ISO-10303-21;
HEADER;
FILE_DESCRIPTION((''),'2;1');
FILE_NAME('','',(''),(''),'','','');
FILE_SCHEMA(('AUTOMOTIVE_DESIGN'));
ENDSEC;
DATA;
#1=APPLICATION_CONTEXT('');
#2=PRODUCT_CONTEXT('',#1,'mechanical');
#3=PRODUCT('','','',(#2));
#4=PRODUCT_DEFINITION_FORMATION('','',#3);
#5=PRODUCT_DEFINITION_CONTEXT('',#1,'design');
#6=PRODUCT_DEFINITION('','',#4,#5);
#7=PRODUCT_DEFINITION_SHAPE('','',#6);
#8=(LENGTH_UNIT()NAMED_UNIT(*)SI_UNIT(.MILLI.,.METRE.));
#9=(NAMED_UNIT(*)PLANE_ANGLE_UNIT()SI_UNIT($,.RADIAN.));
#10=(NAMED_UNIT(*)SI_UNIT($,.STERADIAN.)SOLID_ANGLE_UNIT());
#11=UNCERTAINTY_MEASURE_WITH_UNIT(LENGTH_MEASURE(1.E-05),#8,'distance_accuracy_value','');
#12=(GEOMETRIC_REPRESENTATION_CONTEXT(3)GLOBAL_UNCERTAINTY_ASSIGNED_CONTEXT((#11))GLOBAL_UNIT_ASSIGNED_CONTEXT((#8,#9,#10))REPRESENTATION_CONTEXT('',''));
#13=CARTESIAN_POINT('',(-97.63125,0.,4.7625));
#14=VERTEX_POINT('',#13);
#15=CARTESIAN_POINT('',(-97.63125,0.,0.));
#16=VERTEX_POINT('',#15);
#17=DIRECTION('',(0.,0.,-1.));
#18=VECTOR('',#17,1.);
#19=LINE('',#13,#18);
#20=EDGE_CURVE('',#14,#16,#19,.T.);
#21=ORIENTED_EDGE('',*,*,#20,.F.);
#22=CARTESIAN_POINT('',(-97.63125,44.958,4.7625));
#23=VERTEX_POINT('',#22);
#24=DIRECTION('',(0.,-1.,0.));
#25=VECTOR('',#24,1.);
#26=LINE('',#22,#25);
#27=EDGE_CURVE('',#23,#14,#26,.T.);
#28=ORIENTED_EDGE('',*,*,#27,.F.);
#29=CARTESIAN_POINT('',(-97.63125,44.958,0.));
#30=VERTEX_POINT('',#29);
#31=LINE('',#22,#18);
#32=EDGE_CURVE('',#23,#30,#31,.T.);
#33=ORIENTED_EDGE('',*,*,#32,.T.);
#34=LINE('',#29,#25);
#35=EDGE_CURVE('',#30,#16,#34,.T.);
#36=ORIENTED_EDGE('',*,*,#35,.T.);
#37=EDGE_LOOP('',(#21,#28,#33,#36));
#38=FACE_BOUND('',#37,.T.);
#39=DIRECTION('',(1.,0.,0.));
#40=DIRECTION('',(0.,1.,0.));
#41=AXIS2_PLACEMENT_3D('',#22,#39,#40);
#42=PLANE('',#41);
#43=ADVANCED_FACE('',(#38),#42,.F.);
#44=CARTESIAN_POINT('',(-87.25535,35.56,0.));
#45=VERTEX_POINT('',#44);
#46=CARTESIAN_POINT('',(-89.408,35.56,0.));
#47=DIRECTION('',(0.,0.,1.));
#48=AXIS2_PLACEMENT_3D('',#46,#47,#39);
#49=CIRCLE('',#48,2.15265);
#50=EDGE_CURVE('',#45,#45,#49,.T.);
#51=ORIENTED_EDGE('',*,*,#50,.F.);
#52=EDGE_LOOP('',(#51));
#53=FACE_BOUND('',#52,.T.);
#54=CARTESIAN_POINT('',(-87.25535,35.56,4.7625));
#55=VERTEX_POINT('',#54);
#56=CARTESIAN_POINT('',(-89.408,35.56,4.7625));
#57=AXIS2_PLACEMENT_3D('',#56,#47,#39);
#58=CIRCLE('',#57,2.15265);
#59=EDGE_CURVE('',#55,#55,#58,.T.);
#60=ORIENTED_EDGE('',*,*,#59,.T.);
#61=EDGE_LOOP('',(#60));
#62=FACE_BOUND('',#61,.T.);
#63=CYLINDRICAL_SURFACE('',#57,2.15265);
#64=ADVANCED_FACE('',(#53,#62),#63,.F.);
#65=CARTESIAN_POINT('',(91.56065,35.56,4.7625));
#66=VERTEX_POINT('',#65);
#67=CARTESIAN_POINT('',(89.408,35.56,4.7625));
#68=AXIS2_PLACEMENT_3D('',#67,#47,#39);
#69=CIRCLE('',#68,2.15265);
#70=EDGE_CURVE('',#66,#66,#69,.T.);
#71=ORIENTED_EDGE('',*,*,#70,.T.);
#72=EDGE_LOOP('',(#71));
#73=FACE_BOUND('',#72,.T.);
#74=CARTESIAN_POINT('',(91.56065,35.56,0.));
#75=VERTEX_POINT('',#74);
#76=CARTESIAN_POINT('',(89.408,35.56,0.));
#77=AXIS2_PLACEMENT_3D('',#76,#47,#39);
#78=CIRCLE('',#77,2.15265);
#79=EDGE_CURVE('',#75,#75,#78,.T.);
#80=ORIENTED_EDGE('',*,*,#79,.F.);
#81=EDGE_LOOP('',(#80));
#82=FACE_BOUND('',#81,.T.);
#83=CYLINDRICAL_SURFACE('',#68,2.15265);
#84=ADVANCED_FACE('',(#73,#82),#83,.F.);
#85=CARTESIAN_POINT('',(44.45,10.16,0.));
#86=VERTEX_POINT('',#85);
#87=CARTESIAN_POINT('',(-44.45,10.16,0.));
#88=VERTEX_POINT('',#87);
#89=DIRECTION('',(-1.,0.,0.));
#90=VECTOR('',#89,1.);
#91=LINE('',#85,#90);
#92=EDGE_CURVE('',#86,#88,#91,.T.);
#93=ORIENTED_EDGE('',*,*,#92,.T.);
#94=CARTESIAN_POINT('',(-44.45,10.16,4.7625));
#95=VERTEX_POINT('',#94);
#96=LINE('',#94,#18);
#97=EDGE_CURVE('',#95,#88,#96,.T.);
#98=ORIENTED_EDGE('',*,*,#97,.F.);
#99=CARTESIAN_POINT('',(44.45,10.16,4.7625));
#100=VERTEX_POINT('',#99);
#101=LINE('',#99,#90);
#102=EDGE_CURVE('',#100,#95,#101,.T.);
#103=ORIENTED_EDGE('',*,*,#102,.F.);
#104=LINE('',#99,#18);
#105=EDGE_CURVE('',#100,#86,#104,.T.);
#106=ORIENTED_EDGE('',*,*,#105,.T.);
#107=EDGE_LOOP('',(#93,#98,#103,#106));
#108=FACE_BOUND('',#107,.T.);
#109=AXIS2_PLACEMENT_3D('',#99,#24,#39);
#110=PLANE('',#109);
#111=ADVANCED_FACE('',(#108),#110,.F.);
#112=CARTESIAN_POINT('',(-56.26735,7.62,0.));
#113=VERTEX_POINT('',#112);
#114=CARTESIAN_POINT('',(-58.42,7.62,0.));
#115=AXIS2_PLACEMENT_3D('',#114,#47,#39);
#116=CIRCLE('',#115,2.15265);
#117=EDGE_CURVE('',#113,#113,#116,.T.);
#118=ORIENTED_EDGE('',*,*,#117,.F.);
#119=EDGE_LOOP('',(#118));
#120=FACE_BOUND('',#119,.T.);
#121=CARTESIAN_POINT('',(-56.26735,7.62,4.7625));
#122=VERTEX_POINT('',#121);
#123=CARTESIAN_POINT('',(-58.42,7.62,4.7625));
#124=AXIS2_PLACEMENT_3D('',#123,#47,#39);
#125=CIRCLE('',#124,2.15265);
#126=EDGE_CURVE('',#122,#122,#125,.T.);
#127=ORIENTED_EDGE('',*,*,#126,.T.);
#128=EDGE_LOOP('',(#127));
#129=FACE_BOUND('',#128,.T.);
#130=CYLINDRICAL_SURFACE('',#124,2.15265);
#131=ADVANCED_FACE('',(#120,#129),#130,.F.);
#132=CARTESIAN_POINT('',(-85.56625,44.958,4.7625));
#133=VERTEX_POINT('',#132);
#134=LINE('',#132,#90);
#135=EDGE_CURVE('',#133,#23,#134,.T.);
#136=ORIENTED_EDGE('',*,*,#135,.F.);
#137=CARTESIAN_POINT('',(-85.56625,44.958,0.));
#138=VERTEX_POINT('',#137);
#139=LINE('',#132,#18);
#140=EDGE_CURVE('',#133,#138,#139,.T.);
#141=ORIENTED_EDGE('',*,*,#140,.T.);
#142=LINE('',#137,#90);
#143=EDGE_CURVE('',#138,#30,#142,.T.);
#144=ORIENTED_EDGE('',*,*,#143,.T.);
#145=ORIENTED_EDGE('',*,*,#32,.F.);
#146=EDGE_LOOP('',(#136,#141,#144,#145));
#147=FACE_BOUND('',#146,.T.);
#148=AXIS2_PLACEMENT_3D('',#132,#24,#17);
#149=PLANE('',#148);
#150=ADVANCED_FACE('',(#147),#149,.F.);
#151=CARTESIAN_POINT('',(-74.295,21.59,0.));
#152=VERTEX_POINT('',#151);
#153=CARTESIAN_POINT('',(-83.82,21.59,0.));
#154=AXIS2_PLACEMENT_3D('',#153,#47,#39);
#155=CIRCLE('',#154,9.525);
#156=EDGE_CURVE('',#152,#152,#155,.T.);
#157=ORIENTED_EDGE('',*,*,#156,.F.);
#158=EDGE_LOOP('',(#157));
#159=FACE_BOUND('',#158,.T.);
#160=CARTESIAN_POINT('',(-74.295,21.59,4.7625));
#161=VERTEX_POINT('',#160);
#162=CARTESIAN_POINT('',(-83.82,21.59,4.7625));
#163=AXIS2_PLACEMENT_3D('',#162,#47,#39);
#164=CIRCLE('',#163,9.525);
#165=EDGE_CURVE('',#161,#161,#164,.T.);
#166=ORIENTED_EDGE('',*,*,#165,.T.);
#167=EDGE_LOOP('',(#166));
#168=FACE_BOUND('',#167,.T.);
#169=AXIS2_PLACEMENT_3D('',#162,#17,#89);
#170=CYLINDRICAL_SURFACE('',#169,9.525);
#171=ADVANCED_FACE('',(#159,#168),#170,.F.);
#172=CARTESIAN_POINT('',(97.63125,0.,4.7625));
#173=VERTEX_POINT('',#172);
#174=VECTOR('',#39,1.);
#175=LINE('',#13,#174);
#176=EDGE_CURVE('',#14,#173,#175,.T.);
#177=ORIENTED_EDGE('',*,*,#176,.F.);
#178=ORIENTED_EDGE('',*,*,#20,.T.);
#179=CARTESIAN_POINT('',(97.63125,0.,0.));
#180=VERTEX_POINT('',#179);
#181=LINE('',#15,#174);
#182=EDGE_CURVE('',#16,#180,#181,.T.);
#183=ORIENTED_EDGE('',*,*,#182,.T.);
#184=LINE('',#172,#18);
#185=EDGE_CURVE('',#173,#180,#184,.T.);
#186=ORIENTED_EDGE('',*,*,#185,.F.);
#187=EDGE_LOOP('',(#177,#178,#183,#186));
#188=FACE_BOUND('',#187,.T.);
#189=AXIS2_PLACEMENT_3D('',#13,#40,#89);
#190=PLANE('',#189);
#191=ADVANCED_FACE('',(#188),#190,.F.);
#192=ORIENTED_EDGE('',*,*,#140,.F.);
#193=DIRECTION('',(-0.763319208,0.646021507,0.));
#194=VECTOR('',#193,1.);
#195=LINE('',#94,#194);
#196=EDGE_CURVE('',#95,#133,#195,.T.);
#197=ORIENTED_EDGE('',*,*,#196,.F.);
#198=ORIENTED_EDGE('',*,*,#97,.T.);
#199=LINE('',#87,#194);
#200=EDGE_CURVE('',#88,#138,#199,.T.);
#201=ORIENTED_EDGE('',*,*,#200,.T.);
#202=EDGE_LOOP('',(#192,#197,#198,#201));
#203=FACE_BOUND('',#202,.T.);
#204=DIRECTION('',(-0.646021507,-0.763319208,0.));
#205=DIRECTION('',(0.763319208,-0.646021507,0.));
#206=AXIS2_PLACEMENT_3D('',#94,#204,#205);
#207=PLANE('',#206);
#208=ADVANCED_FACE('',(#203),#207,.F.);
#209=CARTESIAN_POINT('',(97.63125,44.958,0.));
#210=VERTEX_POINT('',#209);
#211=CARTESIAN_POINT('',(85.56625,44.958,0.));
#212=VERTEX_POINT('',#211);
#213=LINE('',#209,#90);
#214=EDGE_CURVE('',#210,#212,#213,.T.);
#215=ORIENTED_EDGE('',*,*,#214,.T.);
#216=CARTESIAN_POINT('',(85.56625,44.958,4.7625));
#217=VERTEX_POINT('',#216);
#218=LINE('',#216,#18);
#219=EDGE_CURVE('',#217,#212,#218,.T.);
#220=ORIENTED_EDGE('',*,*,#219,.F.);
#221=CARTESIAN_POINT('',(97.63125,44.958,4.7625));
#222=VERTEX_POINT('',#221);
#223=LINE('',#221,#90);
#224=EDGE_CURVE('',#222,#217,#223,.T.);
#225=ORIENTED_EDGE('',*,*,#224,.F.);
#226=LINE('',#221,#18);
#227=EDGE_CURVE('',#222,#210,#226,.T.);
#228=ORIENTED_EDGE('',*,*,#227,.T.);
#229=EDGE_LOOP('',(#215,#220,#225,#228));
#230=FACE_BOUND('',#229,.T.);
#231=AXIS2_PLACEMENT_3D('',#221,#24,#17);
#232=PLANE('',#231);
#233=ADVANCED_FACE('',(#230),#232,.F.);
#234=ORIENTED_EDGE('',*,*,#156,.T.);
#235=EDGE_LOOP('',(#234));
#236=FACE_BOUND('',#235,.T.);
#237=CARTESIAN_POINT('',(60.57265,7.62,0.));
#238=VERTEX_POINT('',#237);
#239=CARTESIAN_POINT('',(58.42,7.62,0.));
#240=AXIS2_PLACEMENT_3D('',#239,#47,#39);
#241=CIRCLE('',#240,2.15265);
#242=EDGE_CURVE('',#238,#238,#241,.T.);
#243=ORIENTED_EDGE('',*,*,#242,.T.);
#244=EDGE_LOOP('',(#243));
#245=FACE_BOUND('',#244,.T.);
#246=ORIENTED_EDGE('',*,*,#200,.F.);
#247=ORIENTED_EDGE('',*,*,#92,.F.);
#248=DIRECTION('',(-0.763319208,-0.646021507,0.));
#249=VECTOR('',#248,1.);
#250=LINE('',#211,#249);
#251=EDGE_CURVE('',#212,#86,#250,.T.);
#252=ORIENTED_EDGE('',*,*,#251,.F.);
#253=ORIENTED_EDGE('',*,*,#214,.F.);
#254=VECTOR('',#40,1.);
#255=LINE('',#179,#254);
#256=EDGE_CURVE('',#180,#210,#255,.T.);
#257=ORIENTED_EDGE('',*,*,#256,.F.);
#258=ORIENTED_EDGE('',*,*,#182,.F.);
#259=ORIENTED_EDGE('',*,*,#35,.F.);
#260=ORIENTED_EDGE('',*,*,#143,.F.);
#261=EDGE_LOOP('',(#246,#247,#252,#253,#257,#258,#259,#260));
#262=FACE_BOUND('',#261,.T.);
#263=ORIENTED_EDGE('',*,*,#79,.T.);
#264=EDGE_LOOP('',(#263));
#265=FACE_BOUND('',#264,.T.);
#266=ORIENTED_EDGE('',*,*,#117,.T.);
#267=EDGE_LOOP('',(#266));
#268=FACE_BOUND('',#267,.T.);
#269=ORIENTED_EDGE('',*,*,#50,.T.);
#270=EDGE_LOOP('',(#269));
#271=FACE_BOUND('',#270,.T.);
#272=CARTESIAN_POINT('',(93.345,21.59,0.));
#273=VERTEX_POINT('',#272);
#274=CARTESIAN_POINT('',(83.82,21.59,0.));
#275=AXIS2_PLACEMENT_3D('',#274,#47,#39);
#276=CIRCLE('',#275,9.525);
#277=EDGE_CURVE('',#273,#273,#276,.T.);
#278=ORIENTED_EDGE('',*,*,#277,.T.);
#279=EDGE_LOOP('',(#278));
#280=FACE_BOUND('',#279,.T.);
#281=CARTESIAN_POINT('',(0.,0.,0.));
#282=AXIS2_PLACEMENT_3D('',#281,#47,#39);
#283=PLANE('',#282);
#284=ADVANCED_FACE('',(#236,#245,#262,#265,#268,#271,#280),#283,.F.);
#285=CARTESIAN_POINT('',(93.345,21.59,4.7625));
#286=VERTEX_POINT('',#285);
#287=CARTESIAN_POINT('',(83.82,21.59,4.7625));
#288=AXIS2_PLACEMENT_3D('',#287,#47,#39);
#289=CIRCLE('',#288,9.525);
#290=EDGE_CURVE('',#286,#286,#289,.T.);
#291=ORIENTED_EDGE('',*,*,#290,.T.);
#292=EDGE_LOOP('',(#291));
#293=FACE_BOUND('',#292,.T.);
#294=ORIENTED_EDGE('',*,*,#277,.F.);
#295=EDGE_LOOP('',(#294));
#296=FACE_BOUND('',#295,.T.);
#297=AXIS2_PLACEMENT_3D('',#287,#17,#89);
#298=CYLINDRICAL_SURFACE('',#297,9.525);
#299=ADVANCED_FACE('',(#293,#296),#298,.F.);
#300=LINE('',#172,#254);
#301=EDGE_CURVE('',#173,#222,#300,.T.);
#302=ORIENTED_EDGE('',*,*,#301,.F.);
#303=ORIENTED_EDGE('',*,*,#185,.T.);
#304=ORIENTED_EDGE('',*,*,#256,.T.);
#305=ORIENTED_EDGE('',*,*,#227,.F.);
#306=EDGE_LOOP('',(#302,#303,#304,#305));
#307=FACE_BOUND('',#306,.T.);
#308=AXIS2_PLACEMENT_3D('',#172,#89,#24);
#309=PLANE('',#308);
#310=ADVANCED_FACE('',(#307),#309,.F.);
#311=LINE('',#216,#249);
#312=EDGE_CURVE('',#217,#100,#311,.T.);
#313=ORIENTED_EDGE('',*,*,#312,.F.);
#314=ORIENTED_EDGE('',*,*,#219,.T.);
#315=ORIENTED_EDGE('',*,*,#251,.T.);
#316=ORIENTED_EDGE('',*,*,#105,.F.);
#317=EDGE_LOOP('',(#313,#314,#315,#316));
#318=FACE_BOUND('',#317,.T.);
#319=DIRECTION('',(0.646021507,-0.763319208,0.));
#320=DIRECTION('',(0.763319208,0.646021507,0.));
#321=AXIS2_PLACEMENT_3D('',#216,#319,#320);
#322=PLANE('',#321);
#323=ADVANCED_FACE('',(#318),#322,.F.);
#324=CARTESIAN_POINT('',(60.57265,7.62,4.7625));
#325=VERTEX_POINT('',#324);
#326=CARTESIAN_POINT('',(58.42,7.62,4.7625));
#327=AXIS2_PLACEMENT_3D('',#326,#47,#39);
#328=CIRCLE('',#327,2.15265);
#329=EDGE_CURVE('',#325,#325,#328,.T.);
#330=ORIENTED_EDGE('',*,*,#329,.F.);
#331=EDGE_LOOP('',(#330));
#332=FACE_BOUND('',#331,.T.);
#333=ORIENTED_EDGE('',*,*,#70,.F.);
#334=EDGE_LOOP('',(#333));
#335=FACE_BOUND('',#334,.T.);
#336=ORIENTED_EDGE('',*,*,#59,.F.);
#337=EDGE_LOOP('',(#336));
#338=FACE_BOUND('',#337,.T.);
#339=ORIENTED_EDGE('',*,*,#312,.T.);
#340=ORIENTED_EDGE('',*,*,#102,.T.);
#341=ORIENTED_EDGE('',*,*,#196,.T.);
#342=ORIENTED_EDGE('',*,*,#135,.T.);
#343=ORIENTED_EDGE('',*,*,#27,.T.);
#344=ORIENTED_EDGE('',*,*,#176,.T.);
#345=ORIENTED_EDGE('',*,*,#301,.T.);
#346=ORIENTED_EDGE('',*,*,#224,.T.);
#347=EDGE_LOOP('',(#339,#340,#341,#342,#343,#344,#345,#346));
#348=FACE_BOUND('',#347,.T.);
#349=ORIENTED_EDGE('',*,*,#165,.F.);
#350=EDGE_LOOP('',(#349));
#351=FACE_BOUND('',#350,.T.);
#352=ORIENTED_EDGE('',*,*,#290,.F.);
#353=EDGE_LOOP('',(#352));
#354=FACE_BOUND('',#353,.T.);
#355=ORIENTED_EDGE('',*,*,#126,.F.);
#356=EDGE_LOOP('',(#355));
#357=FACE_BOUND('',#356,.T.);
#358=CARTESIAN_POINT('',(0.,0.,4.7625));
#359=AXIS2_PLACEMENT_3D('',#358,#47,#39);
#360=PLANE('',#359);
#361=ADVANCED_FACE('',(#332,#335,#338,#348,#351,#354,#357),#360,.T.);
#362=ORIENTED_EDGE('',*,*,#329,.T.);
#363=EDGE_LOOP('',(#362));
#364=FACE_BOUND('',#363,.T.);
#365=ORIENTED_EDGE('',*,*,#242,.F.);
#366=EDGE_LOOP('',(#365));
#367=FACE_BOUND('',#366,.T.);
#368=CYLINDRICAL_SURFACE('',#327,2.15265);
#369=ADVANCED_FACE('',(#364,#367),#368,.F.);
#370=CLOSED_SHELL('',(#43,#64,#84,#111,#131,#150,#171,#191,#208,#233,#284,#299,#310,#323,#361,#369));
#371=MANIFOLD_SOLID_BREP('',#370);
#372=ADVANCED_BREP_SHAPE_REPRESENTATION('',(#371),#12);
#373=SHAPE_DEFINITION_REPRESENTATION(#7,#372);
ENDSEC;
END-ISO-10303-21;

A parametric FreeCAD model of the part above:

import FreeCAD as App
import Part
import Sketcher
Q = App.Units.Quantity


def add_polygon(sketch, points):
    """Adds a closed chain of lines whose ends are joined by coincident constraints."""
    first, n = sketch.GeometryCount, len(points)
    for a, b in zip(points, points[1:] + points[:1]):
        sketch.addGeometry(Part.LineSegment(App.Vector(*a, 0), App.Vector(*b, 0)), False)
    for i in range(n):
        sketch.addConstraint(Sketcher.Constraint("Coincident", first + i, 2, first + (i + 1) % n, 1))

doc = App.newDocument("Part")
params = doc.addObject("Spreadsheet::Sheet", "Params")
for row, (alias, value) in enumerate([
    ("sketch1_diameter", "0.75 in"),
    ("sketch1_width", "3.5 in"),
    ("sketch1_height", "1.77 in"),
    ("sketch1_width2", "0.475 in"),
    ("sketch1_width3", "7.6875 in"),
    ("pad1_length", "0.1875 in"),
    ("hole_diameter", "0.1695 in"),
], start=1):
    params.set(f"A{row}", alias)
    params.set(f"B{row}", "=" + value)
    params.setAlias(f"B{row}", alias)

body = doc.addObject("PartDesign::Body", "Body")

sketch1 = body.newObject("Sketcher::SketchObject", "Sketch")
sketch1.AttachmentSupport = (doc.getObject("XY_Plane"), [""])
sketch1.MapMode = "FlatFace"
add_polygon(sketch1, [(-44, 10), (-86, 45), (-98, 45), (-98, 0), (98, 0), (98, 45), (86, 45), (44, 10)])
sketch1.addGeometry(Part.Circle(App.Vector(-84, 22, 0), App.Vector(0, 0, 1), 10), False)
sketch1.addGeometry(Part.Circle(App.Vector(84, 22, 0), App.Vector(0, 0, 1), 10), False)
sketch1.addConstraint([
    Sketcher.Constraint("Horizontal", 1),
    Sketcher.Constraint("Vertical", 2),
    Sketcher.Constraint("Horizontal", 3),
    Sketcher.Constraint("Vertical", 4),
    Sketcher.Constraint("Horizontal", 5),
    Sketcher.Constraint("Horizontal", 7),
    Sketcher.Constraint("Equal", 8, 9),
    Sketcher.Constraint("Symmetric", 2, 2, 3, 2, -1, 1),
    Sketcher.Constraint("Symmetric", 8, 3, 9, 3, -2),
    Sketcher.Constraint("Symmetric", 0, 2, 5, 2, -2),
    Sketcher.Constraint("Equal", 0, 6),
    Sketcher.Constraint("Diameter", 8, Q("0.75 in")),
    Sketcher.Constraint("DistanceX", 7, 2, 7, 1, Q("3.5 in")),
    Sketcher.Constraint("DistanceY", 2, 2, 2, 1, Q("1.77 in")),
    Sketcher.Constraint("DistanceX", 8, 3, -1, 1, Q("3.3 in")),
    Sketcher.Constraint("DistanceY", -1, 1, 6, 2, Q("0.4 in")),
    Sketcher.Constraint("DistanceX", 1, 2, 1, 1, Q("0.475 in")),
    Sketcher.Constraint("DistanceX", 3, 1, 3, 2, Q("7.6875 in")),
    Sketcher.Constraint("DistanceY", -1, 1, 8, 3, Q("0.85 in")),
])
sketch1.setExpression("Constraints[19]", "Params.sketch1_diameter")
sketch1.setExpression("Constraints[20]", "Params.sketch1_width")
sketch1.setExpression("Constraints[21]", "Params.sketch1_height")
sketch1.setExpression("Constraints[24]", "Params.sketch1_width2")
sketch1.setExpression("Constraints[25]", "Params.sketch1_width3")
pad1 = body.newObject("PartDesign::Pad", "Pad")
pad1.Profile = sketch1
pad1.setExpression("Length", "Params.pad1_length")

sketch2 = body.newObject("Sketcher::SketchObject", "Sketch001")
sketch2.AttachmentSupport = (doc.getObject("XY_Plane"), [""])
sketch2.MapMode = "FlatFace"
sketch2.AttachmentOffset = App.Placement(App.Vector(0, 0, 0.1875 * 25.4), App.Rotation())
sketch2.addGeometry([
    Part.Circle(App.Vector(89.4, 35.6, 0), App.Vector(0, 0, 1), 2.2),
    Part.Circle(App.Vector(58.4, 7.6, 0), App.Vector(0, 0, 1), 2.2),
    Part.Circle(App.Vector(-58.4, 7.6, 0), App.Vector(0, 0, 1), 2.2),
    Part.Circle(App.Vector(-89.4, 35.6, 0), App.Vector(0, 0, 1), 2.2),
], False)
sketch2.addConstraint([
    Sketcher.Constraint("Equal", 0, 1),
    Sketcher.Constraint("Equal", 1, 2),
    Sketcher.Constraint("Equal", 2, 3),
    Sketcher.Constraint("Symmetric", 1, 3, 2, 3, -2),
    Sketcher.Constraint("Symmetric", 0, 3, 3, 3, -2),
    Sketcher.Constraint("Diameter", 0, Q("0.1695 in")),
    Sketcher.Constraint("DistanceY", -1, 1, 0, 3, Q("1.4 in")),
    Sketcher.Constraint("DistanceX", -1, 1, 1, 3, Q("2.3 in")),
    Sketcher.Constraint("DistanceY", -1, 1, 1, 3, Q("0.3 in")),
    Sketcher.Constraint("DistanceX", -1, 1, 0, 3, Q("3.52 in")),
])
doc.recompute()
hole = body.newObject("PartDesign::Hole", "Hole")
hole.Profile = sketch2
hole.ThreadType = "None"
hole.setExpression("Diameter", "Params.hole_diameter")
hole.DepthType = "ThroughAll"

doc.recompute()
